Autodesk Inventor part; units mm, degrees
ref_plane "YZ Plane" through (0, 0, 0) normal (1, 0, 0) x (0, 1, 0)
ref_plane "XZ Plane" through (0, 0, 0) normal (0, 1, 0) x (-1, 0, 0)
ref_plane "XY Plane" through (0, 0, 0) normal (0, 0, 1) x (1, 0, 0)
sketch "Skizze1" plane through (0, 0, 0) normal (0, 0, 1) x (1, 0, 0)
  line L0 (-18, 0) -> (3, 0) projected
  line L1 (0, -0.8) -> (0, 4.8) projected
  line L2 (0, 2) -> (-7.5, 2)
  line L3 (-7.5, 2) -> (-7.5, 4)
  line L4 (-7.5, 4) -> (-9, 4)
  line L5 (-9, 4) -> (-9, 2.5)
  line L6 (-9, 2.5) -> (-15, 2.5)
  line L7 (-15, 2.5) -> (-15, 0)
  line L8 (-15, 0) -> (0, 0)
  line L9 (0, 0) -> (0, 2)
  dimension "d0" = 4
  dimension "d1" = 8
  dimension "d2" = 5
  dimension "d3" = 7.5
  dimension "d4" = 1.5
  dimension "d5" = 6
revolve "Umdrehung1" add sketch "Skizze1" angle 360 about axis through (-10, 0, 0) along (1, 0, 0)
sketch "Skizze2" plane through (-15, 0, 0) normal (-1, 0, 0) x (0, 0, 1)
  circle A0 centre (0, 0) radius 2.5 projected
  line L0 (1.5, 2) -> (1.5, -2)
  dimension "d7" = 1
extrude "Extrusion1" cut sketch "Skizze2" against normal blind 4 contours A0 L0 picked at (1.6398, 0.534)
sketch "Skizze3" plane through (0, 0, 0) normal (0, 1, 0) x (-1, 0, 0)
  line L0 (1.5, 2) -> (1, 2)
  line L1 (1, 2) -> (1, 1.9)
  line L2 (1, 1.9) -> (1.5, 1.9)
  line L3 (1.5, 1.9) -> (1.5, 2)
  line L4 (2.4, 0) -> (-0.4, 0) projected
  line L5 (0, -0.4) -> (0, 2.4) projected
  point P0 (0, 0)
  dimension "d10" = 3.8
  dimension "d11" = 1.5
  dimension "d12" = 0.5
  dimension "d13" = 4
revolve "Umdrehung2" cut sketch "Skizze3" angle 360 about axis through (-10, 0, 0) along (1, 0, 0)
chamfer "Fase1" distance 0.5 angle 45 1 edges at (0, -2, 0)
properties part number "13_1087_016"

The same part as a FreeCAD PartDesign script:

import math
import FreeCAD as App
import Part
import Sketcher
from FreeCAD import Vector
Q = App.Units.Quantity


def edges_at(feature, points):
    """Names of the edges that pass closest to the given points."""
    edges = feature.Shape.Edges
    near = lambda p: min(range(len(edges)), key=lambda i: edges[i].distToShape(Part.Vertex(*p))[0])
    return sorted({f"Edge{near(p) + 1}" for p in points})

doc = App.newDocument("Part")
body = doc.addObject("PartDesign::Body", "Body")

sketch1 = body.newObject("Sketcher::SketchObject", "Sketch")
sketch1.AttachmentSupport = (doc.getObject("XY_Plane"), [""])
sketch1.MapMode = "FlatFace"
sketch1.addGeometry(Part.LineSegment(Vector(-15, 2.5, 0), Vector(-15, 0, 0)), False)
sketch1.addGeometry(Part.LineSegment(Vector(-15, 0, 0), Vector(0, 0, 0)), False)
sketch1.addGeometry(Part.LineSegment(Vector(0, 0, 0), Vector(0, 2, 0)), False)
sketch1.addGeometry(Part.LineSegment(Vector(0, 2, 0), Vector(-7.5, 2, 0)), False)
sketch1.addGeometry(Part.LineSegment(Vector(-7.5, 2, 0), Vector(-7.5, 4, 0)), False)
sketch1.addGeometry(Part.LineSegment(Vector(-7.5, 4, 0), Vector(-9, 4, 0)), False)
sketch1.addGeometry(Part.LineSegment(Vector(-9, 4, 0), Vector(-9, 2.5, 0)), False)
sketch1.addGeometry(Part.LineSegment(Vector(-9, 2.5, 0), Vector(-15, 2.5, 0)), False)
sketch1.addConstraint(Sketcher.Constraint("Coincident", 0, 2, 1, 1))
sketch1.addConstraint(Sketcher.Constraint("Coincident", 1, 2, 2, 1))
sketch1.addConstraint(Sketcher.Constraint("Coincident", 2, 2, 3, 1))
sketch1.addConstraint(Sketcher.Constraint("Coincident", 3, 2, 4, 1))
sketch1.addConstraint(Sketcher.Constraint("Coincident", 4, 2, 5, 1))
sketch1.addConstraint(Sketcher.Constraint("Coincident", 5, 2, 6, 1))
sketch1.addConstraint(Sketcher.Constraint("Coincident", 6, 2, 7, 1))
sketch1.addConstraint(Sketcher.Constraint("Coincident", 7, 2, 0, 1))
sketch1.addConstraint(Sketcher.Constraint("Vertical", 0))
sketch1.addConstraint(Sketcher.Constraint("Horizontal", 1))
sketch1.addConstraint(Sketcher.Constraint("Vertical", 2))
sketch1.addConstraint(Sketcher.Constraint("Horizontal", 3))
sketch1.addConstraint(Sketcher.Constraint("Vertical", 4))
sketch1.addConstraint(Sketcher.Constraint("Horizontal", 5))
sketch1.addConstraint(Sketcher.Constraint("Vertical", 6))
sketch1.addConstraint(Sketcher.Constraint("Horizontal", 7))
sketch1.addConstraint(Sketcher.Constraint("Coincident", 1, 2, -1, 1))
sketch1.addConstraint(Sketcher.Constraint("Equal", 2, 4))
sketch1.addConstraint(Sketcher.Constraint("Equal", 5, 6))
sketch1.addConstraint(Sketcher.Constraint("DistanceX", 7, 2, 7, 1, Q("6 mm")))
sketch1.addConstraint(Sketcher.Constraint("DistanceX", 3, 2, 3, 1, Q("7.5 mm")))
sketch1.addConstraint(Sketcher.Constraint("DistanceX", 5, 2, 5, 1, Q("1.5 mm")))
sketch1.addConstraint(Sketcher.Constraint("DistanceY", -1, 1, 4, 2, Q("4 mm")))
revolution = body.newObject("PartDesign::Revolution", "Revolution")
revolution.Profile = sketch1
revolution.ReferenceAxis = (sketch1, ["H_Axis"])
revolution.Angle = 360

sketch2 = body.newObject("Sketcher::SketchObject", "Sketch001")
sketch2.AttachmentSupport = (doc.getObject("YZ_Plane"), [""])
sketch2.MapMode = "FlatFace"
sketch2.AttachmentOffset = App.Placement(Vector(0, 0, -15), App.Rotation())
sketch2.addGeometry(Part.ArcOfCircle(Part.Circle(Vector(0, 0, 0), Vector(0, 0, 1), 2.5), math.radians(37), math.radians(143)), False)
sketch2.addGeometry(Part.LineSegment(Vector(2, 1.5, 0), Vector(-2, 1.5, 0)), False)
sketch2.addConstraint(Sketcher.Constraint("Coincident", 0, 1, 1, 1))
sketch2.addConstraint(Sketcher.Constraint("Coincident", 1, 2, 0, 2))
sketch2.addConstraint(Sketcher.Constraint("Horizontal", 1))
sketch2.addConstraint(Sketcher.Constraint("Coincident", 0, 3, -1, 1))
sketch2.addConstraint(Sketcher.Constraint("Radius", 0, Q("2.5 mm")))
sketch2.addConstraint(Sketcher.Constraint("DistanceX", 1, 2, 1, 1, Q("4 mm")))
pocket1 = body.newObject("PartDesign::Pocket", "Pocket")
pocket1.Profile = sketch2
pocket1.Length = 4
pocket1.Reversed = True

sketch3 = body.newObject("Sketcher::SketchObject", "Sketch002")
sketch3.AttachmentSupport = (doc.getObject("XZ_Plane"), [""])
sketch3.MapMode = "FlatFace"
sketch3.addGeometry(Part.LineSegment(Vector(-1.5, 1.9, 0), Vector(-1.5, 2, 0)), False)
sketch3.addGeometry(Part.LineSegment(Vector(-1.5, 2, 0), Vector(-1, 2, 0)), False)
sketch3.addGeometry(Part.LineSegment(Vector(-1, 2, 0), Vector(-1, 1.9, 0)), False)
sketch3.addGeometry(Part.LineSegment(Vector(-1, 1.9, 0), Vector(-1.5, 1.9, 0)), False)
sketch3.addConstraint(Sketcher.Constraint("Coincident", 0, 2, 1, 1))
sketch3.addConstraint(Sketcher.Constraint("Coincident", 1, 2, 2, 1))
sketch3.addConstraint(Sketcher.Constraint("Coincident", 2, 2, 3, 1))
sketch3.addConstraint(Sketcher.Constraint("Coincident", 3, 2, 0, 1))
sketch3.addConstraint(Sketcher.Constraint("Vertical", 0))
sketch3.addConstraint(Sketcher.Constraint("Horizontal", 1))
sketch3.addConstraint(Sketcher.Constraint("Vertical", 2))
sketch3.addConstraint(Sketcher.Constraint("Horizontal", 3))
sketch3.addConstraint(Sketcher.Constraint("DistanceX", 1, 1, 1, 2, Q("0.5 mm")))
sketch3.addConstraint(Sketcher.Constraint("DistanceX", 0, 2, -1, 1, Q("1.5 mm")))
sketch3.addConstraint(Sketcher.Constraint("DistanceY", 0, 1, 0, 2, Q("0.1 mm")))
sketch3.addConstraint(Sketcher.Constraint("DistanceY", -1, 1, 0, 2, Q("2 mm")))
groove = body.newObject("PartDesign::Groove", "Groove")
groove.Profile = sketch3
groove.ReferenceAxis = (sketch3, ["H_Axis"])
groove.Angle = 360
doc.recompute()

chamfer = body.newObject("PartDesign::Chamfer", "Chamfer")
chamfer.Base = (groove, edges_at(groove, [(0, -2, 0)]))
chamfer.Size = 0.5

doc.recompute()
